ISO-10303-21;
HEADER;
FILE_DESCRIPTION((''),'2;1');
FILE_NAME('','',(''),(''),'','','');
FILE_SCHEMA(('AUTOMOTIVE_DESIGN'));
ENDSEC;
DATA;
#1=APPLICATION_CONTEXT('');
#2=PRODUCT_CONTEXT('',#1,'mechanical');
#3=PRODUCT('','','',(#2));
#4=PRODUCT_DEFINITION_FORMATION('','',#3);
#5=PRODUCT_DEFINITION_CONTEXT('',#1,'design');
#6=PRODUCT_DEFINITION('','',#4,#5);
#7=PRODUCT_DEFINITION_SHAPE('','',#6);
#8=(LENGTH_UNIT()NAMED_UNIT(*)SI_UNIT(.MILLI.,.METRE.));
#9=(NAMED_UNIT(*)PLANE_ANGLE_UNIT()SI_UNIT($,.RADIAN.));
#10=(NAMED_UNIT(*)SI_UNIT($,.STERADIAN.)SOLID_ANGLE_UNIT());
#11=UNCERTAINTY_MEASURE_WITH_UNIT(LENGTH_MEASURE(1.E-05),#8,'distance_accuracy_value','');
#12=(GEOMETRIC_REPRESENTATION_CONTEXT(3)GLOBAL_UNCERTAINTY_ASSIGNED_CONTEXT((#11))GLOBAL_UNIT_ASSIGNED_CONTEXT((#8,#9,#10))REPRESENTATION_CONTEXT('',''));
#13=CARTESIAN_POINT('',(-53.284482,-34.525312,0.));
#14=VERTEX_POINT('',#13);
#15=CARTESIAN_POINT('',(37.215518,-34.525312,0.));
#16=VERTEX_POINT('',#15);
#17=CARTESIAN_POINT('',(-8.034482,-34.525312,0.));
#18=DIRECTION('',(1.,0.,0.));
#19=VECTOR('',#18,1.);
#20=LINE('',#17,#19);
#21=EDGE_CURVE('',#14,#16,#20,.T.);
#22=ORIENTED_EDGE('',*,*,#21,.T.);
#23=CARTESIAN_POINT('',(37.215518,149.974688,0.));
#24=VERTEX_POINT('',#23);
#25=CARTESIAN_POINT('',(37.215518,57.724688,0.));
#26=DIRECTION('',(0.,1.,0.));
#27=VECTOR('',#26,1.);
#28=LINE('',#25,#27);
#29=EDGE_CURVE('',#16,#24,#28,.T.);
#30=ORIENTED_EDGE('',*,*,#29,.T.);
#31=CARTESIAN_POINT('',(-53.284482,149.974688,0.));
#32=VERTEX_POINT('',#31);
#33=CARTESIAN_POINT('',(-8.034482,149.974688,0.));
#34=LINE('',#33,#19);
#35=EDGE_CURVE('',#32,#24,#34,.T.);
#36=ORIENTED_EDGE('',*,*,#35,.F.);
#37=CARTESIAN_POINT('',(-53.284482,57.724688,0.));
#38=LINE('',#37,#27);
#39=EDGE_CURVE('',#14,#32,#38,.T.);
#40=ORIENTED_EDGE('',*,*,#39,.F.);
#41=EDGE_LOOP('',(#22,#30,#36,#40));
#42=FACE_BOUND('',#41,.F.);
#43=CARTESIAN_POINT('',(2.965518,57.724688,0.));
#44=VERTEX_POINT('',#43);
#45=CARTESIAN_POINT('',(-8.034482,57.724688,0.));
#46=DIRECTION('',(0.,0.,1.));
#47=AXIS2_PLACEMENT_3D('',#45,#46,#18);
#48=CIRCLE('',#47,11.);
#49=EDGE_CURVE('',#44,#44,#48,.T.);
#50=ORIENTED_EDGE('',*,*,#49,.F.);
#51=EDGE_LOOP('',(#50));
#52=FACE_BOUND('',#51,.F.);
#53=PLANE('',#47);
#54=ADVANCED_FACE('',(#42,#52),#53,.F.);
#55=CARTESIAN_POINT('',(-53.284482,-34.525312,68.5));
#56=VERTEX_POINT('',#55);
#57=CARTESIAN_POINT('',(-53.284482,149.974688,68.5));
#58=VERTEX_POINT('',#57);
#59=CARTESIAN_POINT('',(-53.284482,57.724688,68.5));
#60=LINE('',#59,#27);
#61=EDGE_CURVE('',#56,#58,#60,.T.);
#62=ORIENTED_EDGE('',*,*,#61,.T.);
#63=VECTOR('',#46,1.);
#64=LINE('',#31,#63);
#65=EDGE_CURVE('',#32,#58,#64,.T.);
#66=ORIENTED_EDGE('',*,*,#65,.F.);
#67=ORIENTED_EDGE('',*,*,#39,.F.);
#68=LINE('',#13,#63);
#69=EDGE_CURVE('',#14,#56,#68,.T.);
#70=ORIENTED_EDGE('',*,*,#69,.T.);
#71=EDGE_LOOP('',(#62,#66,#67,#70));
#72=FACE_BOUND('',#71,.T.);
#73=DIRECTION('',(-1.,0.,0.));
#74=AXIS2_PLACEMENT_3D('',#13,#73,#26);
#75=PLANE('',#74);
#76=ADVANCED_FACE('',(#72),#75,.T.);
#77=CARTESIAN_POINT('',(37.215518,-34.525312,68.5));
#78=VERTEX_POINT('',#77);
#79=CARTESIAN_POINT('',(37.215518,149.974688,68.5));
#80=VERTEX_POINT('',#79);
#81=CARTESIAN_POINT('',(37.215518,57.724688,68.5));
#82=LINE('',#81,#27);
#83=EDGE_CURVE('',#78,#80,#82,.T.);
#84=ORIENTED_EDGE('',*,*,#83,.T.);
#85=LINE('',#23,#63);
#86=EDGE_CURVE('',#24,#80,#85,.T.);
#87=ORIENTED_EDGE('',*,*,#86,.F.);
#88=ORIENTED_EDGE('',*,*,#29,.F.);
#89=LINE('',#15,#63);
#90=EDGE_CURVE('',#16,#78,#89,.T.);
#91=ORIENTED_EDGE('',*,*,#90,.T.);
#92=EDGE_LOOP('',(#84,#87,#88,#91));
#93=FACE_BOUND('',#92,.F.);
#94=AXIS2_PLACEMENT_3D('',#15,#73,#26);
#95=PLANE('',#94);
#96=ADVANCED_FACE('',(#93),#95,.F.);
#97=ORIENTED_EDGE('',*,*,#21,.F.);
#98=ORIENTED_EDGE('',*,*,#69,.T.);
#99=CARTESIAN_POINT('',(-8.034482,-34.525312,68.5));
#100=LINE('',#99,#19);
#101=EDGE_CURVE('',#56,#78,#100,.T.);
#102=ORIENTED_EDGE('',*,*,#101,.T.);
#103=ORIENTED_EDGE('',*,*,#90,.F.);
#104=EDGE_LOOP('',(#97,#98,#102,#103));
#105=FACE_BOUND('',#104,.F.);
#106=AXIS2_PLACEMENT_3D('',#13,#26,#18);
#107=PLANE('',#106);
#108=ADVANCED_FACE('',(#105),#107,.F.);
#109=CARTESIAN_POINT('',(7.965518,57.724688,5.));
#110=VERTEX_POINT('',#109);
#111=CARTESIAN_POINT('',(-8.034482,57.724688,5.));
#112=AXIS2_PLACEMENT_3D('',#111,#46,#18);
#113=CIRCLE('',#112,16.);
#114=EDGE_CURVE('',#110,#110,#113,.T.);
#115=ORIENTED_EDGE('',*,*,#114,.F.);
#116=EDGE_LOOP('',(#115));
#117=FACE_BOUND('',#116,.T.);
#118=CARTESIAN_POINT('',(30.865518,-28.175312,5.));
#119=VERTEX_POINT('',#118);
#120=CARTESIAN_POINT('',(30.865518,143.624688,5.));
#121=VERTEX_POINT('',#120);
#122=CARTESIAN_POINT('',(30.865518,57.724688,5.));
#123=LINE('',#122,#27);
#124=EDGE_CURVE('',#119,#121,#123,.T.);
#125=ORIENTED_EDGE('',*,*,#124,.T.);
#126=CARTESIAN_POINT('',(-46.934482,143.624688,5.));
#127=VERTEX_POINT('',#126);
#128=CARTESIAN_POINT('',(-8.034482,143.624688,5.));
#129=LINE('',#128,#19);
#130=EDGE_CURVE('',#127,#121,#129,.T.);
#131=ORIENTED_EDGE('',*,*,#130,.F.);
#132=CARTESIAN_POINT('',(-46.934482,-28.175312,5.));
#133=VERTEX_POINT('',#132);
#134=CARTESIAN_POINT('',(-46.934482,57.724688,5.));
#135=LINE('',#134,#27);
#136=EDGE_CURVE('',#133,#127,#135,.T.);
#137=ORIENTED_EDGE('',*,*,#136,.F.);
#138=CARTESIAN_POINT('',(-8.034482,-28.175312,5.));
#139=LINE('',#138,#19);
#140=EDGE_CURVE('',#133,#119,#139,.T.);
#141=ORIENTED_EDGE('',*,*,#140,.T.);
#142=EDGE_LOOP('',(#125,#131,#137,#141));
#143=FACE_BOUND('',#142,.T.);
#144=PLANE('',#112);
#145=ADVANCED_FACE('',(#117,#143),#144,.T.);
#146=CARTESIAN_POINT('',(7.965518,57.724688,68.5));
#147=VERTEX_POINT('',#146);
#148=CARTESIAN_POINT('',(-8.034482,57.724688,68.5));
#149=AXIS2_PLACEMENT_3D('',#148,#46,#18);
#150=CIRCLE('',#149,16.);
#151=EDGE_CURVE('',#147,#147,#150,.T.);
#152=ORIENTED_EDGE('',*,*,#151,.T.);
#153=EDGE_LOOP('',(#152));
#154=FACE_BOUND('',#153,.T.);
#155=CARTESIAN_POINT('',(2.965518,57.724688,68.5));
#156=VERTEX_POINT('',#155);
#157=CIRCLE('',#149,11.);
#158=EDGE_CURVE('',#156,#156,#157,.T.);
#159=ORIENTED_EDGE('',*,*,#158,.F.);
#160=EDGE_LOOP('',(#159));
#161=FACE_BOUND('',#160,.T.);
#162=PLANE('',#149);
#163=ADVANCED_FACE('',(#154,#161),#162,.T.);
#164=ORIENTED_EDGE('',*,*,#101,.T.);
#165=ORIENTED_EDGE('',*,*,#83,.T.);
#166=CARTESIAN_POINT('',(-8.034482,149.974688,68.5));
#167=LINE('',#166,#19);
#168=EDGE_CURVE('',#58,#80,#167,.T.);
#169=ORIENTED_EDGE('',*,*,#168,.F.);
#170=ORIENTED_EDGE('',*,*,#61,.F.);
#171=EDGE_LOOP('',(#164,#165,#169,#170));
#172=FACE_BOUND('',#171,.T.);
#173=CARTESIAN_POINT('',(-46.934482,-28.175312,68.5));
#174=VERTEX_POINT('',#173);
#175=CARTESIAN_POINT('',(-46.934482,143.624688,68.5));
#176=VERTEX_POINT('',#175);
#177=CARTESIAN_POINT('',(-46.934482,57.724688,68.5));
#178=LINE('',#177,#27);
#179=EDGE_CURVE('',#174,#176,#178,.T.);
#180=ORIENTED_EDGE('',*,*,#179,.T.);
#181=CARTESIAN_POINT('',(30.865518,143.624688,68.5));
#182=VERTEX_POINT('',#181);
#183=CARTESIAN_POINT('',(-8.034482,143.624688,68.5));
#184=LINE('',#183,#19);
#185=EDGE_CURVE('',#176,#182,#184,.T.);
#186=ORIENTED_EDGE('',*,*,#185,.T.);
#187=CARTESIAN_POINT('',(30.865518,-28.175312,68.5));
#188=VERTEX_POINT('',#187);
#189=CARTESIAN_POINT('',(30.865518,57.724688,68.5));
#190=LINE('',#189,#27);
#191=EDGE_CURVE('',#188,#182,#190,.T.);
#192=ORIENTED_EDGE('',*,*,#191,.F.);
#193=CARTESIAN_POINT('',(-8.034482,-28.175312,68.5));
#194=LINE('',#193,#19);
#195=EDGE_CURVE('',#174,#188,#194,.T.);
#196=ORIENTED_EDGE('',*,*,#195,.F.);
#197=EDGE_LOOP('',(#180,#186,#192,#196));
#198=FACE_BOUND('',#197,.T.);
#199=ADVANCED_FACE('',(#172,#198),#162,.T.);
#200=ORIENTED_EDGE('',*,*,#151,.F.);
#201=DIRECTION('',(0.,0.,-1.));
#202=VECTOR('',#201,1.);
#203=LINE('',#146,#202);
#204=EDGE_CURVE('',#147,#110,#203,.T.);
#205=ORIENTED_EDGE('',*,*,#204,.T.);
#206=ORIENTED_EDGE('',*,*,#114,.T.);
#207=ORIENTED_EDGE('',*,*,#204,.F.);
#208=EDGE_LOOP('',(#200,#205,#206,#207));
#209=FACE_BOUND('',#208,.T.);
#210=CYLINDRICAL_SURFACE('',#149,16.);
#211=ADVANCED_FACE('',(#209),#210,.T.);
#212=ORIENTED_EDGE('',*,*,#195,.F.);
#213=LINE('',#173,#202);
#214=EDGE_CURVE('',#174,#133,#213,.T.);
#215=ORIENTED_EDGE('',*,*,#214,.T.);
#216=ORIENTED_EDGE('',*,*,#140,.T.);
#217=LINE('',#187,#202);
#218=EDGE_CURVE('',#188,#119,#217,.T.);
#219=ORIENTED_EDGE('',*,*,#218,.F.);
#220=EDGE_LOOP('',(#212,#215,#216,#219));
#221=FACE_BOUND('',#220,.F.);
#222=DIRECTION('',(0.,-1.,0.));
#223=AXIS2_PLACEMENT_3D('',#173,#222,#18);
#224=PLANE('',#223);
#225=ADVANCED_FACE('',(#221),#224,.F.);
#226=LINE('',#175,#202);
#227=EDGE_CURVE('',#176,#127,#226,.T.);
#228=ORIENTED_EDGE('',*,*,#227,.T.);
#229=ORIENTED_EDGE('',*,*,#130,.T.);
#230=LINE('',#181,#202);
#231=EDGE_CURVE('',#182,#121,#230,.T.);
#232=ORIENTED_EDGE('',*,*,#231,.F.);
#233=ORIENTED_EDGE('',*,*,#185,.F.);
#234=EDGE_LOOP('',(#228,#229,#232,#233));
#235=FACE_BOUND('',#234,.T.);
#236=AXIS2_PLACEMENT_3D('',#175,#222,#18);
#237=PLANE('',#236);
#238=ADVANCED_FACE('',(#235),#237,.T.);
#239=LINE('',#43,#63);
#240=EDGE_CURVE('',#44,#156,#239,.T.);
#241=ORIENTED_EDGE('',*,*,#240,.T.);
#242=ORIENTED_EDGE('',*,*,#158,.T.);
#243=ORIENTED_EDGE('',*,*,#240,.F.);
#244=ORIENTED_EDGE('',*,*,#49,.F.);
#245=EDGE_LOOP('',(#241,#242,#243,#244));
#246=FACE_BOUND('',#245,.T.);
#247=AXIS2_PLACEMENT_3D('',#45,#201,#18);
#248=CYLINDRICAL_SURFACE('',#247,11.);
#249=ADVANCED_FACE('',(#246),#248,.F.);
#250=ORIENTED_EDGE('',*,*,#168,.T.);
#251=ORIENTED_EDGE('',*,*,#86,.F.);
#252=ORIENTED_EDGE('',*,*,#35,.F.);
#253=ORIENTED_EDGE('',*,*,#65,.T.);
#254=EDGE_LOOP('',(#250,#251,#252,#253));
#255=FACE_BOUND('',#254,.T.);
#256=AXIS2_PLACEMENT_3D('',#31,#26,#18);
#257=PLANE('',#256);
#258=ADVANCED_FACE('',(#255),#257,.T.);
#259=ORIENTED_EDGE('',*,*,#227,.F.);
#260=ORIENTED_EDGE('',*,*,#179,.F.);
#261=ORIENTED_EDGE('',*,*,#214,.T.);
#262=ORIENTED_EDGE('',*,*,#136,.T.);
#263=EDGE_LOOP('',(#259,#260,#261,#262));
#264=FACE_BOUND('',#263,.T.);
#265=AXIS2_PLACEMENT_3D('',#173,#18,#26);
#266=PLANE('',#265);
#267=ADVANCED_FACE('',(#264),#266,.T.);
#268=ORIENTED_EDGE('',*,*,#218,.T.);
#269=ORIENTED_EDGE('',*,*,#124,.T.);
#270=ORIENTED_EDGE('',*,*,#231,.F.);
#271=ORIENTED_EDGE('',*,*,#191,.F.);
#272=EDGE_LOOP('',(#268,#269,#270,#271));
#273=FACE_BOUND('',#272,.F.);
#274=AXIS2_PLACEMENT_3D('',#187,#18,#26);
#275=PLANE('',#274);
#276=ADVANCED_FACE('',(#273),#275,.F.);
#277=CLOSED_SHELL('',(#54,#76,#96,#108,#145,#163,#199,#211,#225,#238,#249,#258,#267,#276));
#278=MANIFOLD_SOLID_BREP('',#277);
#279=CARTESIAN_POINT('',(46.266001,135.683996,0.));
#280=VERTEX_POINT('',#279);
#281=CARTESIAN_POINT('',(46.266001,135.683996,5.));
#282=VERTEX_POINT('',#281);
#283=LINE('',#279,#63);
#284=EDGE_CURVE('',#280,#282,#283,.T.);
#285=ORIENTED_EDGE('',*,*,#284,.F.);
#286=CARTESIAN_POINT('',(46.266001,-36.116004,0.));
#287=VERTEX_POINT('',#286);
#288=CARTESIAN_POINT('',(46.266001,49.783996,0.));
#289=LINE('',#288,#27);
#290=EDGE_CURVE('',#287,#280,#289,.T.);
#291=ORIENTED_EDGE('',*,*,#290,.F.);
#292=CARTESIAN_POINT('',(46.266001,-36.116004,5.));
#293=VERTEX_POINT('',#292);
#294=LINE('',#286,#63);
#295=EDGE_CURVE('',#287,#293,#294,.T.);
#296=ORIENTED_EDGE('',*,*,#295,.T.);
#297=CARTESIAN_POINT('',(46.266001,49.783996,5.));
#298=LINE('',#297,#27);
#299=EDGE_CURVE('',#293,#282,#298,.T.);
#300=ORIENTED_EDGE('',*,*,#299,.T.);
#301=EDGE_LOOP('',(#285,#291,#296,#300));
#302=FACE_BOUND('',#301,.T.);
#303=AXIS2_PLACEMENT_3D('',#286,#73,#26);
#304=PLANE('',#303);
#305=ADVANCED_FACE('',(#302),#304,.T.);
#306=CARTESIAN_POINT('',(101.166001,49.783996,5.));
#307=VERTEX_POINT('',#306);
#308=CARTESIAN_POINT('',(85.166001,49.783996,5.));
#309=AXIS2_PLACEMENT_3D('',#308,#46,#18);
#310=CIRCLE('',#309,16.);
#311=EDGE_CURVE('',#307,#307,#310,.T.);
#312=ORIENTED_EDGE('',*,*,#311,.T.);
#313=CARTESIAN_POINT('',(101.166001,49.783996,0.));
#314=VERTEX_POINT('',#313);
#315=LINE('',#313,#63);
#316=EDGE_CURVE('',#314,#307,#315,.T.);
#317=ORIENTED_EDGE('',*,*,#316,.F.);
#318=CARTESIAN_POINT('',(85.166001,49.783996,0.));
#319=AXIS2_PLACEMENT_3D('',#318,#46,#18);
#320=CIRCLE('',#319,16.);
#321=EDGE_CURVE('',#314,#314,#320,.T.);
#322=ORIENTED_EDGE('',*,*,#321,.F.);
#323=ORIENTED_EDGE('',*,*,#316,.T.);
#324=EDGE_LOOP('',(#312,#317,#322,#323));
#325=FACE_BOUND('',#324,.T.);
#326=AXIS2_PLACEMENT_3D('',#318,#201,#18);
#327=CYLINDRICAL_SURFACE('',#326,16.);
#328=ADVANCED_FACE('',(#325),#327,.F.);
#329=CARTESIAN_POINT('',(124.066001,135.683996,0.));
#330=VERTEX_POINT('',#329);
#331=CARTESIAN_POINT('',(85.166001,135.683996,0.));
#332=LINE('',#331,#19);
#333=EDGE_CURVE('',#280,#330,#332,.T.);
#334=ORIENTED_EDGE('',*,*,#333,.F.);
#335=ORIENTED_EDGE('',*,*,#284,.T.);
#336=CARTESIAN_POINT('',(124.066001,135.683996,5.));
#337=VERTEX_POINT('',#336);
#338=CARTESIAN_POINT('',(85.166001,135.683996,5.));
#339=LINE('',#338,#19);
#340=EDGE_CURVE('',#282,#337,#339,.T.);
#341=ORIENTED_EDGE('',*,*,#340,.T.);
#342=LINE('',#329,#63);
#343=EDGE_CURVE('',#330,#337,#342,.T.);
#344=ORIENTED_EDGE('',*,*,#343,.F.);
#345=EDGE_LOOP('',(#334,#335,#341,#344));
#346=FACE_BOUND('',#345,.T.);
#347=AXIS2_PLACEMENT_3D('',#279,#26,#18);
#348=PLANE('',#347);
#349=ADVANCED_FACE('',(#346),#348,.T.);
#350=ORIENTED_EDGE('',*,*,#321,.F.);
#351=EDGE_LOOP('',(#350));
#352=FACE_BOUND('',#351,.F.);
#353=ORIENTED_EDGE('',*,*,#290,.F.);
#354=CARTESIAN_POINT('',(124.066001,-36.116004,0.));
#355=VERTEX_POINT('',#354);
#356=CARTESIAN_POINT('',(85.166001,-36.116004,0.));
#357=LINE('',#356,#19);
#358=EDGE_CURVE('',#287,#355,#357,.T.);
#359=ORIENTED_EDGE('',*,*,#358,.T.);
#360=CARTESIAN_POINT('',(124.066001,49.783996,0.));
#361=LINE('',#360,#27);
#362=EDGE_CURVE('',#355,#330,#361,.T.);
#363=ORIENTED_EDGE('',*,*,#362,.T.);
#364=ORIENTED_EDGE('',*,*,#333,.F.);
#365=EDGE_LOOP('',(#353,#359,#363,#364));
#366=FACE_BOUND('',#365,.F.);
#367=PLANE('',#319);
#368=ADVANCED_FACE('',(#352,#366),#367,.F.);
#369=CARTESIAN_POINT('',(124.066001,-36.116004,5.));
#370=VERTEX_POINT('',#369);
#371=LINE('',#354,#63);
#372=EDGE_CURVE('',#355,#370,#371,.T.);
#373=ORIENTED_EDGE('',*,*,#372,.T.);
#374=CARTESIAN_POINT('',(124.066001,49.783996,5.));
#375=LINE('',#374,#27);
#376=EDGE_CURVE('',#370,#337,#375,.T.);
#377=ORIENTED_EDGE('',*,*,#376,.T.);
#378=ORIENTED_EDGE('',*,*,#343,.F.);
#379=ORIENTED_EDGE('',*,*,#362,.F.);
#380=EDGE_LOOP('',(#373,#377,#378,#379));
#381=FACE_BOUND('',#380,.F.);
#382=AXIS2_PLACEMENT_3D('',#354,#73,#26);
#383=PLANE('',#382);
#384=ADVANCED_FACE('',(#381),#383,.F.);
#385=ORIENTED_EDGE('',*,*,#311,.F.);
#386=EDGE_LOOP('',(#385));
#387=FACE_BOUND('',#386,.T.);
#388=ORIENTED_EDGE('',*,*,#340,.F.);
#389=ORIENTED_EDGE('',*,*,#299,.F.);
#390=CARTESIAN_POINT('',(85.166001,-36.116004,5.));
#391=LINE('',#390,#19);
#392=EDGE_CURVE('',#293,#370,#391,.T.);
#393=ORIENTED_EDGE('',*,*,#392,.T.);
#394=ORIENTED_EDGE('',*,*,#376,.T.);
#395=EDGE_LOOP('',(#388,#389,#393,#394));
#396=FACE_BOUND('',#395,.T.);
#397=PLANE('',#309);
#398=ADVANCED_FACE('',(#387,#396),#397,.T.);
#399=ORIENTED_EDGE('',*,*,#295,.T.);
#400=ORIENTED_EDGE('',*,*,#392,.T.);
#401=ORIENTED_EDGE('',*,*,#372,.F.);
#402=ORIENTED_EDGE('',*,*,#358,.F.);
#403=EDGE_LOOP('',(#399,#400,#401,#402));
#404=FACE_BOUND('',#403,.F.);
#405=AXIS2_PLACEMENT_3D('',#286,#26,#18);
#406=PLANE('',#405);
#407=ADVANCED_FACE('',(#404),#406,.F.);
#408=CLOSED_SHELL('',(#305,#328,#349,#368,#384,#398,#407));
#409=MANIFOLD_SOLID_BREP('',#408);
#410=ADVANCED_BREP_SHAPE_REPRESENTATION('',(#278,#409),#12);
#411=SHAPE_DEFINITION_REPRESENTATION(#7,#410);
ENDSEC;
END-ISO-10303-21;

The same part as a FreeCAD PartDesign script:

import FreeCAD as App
import Part
import Sketcher

V = App.Vector


def add_polygon(sketch, points):
    """Adds a closed chain of lines whose ends are joined by coincident constraints."""
    first, n = sketch.GeometryCount, len(points)
    for a, b in zip(points, points[1:] + points[:1]):
        sketch.addGeometry(Part.LineSegment(App.Vector(*a, 0), App.Vector(*b, 0)), False)
    for i in range(n):
        sketch.addConstraint(Sketcher.Constraint("Coincident", first + i, 2, first + (i + 1) % n, 1))

doc = App.newDocument("Part")
params = doc.addObject("Spreadsheet::Sheet", "Params")
for row, (alias, value) in enumerate([
    ("sketch1_diameter", "22 mm"),
    ("sketch1_width", "90.5 mm"),
    ("sketch1_height", "184.5 mm"),
    ("pad1_length", "68.5 mm"),
    ("sketch2_diameter", "32 mm"),
    ("sketch2_width", "77.8 mm"),
    ("sketch2_height", "171.8 mm"),
    ("pocket1_length", "63.5 mm"),
    ("sketch3_diameter", "32 mm"),
    ("sketch3_width", "77.8 mm"),
    ("sketch3_height", "171.8 mm"),
    ("pad2_length", "5 mm"),
], start=1):
    params.set(f"A{row}", alias)
    params.set(f"B{row}", "=" + value)
    params.setAlias(f"B{row}", alias)

body = doc.addObject("PartDesign::Body", "Body")

sketch1 = body.newObject("Sketcher::SketchObject", "Sketch")
sketch1.AttachmentSupport = (doc.getObject("XY_Plane"), [""])
sketch1.MapMode = "FlatFace"
add_polygon(sketch1, [(-53, 150), (-53, -35), (37, -35), (37, 150)])
sketch1.addGeometry(Part.Circle(V(-8, 58, 0), V(0, 0, 1), 11), False)
sketch1.addConstraint(Sketcher.Constraint("Vertical", 0))
sketch1.addConstraint(Sketcher.Constraint("Horizontal", 1))
sketch1.addConstraint(Sketcher.Constraint("Vertical", 2))
sketch1.addConstraint(Sketcher.Constraint("Horizontal", 3))
sketch1.addConstraint(Sketcher.Constraint("Diameter", 4, 22.0))
sketch1.addConstraint(Sketcher.Constraint("DistanceX", 1, 1, 1, 2, 90.5))
sketch1.addConstraint(Sketcher.Constraint("DistanceY", 0, 2, 0, 1, 184.5))
sketch1.addConstraint(Sketcher.Constraint("DistanceX", 0, 2, 4, 3, 45.25))
sketch1.addConstraint(Sketcher.Constraint("DistanceY", 0, 2, 4, 3, 92.25))
sketch1.addConstraint(Sketcher.Constraint("DistanceX", 0, 2, -1, 1, 53.284482))
sketch1.addConstraint(Sketcher.Constraint("DistanceY", -1, 1, 4, 3, 57.724688))
sketch1.setExpression("Constraints[8]", "Params.sketch1_diameter")
sketch1.setExpression("Constraints[9]", "Params.sketch1_width")
sketch1.setExpression("Constraints[10]", "Params.sketch1_height")
pad1 = body.newObject("PartDesign::Pad", "Pad")
pad1.Profile = sketch1
pad1.setExpression("Length", "Params.pad1_length")

sketch2 = body.newObject("Sketcher::SketchObject", "Sketch001")
sketch2.AttachmentSupport = (doc.getObject("XY_Plane"), [""])
sketch2.MapMode = "FlatFace"
sketch2.AttachmentOffset = App.Placement(V(0, 0, 68.5), App.Rotation())
add_polygon(sketch2, [(-47, 144), (-47, -28), (31, -28), (31, 144)])
sketch2.addGeometry(Part.Circle(V(-8, 58, 0), V(0, 0, 1), 16), False)
sketch2.addConstraint(Sketcher.Constraint("Vertical", 0))
sketch2.addConstraint(Sketcher.Constraint("Horizontal", 1))
sketch2.addConstraint(Sketcher.Constraint("Vertical", 2))
sketch2.addConstraint(Sketcher.Constraint("Horizontal", 3))
sketch2.addConstraint(Sketcher.Constraint("Diameter", 4, 32.0))
sketch2.addConstraint(Sketcher.Constraint("DistanceX", 1, 1, 1, 2, 77.8))
sketch2.addConstraint(Sketcher.Constraint("DistanceY", 0, 2, 0, 1, 171.8))
sketch2.addConstraint(Sketcher.Constraint("DistanceX", 0, 2, 4, 3, 38.9))
sketch2.addConstraint(Sketcher.Constraint("DistanceY", 0, 2, 4, 3, 85.9))
sketch2.addConstraint(Sketcher.Constraint("DistanceX", -1, 1, 1, 2, 30.865518))
sketch2.addConstraint(Sketcher.Constraint("DistanceY", -1, 1, 2, 2, 143.624688))
sketch2.setExpression("Constraints[8]", "Params.sketch2_diameter")
sketch2.setExpression("Constraints[9]", "Params.sketch2_width")
sketch2.setExpression("Constraints[10]", "Params.sketch2_height")
pocket1 = body.newObject("PartDesign::Pocket", "Pocket")
pocket1.Profile = sketch2
pocket1.setExpression("Length", "Params.pocket1_length")
body2 = doc.addObject("PartDesign::Body", "Body001")

sketch3 = body2.newObject("Sketcher::SketchObject", "Sketch002")
sketch3.AttachmentSupport = (doc.getObject("XY_Plane001"), [""])
sketch3.MapMode = "FlatFace"
add_polygon(sketch3, [(46, 136), (46, -36), (124, -36), (124, 136)])
sketch3.addGeometry(Part.Circle(V(85, 50, 0), V(0, 0, 1), 16), False)
sketch3.addConstraint(Sketcher.Constraint("Vertical", 0))
sketch3.addConstraint(Sketcher.Constraint("Horizontal", 1))
sketch3.addConstraint(Sketcher.Constraint("Vertical", 2))
sketch3.addConstraint(Sketcher.Constraint("Horizontal", 3))
sketch3.addConstraint(Sketcher.Constraint("Diameter", 4, 32.0))
sketch3.addConstraint(Sketcher.Constraint("DistanceX", 1, 1, 1, 2, 77.8))
sketch3.addConstraint(Sketcher.Constraint("DistanceY", 0, 2, 0, 1, 171.8))
sketch3.addConstraint(Sketcher.Constraint("DistanceX", 0, 2, 4, 3, 38.9))
sketch3.addConstraint(Sketcher.Constraint("DistanceY", 0, 2, 4, 3, 85.9))
sketch3.addConstraint(Sketcher.Constraint("DistanceX", -1, 1, 4, 3, 85.166001))
sketch3.addConstraint(Sketcher.Constraint("DistanceY", -1, 1, 4, 3, 49.783996))
sketch3.setExpression("Constraints[8]", "Params.sketch3_diameter")
sketch3.setExpression("Constraints[9]", "Params.sketch3_width")
sketch3.setExpression("Constraints[10]", "Params.sketch3_height")
pad2 = body2.newObject("PartDesign::Pad", "Pad001")
pad2.Profile = sketch3
pad2.setExpression("Length", "Params.pad2_length")

doc.recompute()
